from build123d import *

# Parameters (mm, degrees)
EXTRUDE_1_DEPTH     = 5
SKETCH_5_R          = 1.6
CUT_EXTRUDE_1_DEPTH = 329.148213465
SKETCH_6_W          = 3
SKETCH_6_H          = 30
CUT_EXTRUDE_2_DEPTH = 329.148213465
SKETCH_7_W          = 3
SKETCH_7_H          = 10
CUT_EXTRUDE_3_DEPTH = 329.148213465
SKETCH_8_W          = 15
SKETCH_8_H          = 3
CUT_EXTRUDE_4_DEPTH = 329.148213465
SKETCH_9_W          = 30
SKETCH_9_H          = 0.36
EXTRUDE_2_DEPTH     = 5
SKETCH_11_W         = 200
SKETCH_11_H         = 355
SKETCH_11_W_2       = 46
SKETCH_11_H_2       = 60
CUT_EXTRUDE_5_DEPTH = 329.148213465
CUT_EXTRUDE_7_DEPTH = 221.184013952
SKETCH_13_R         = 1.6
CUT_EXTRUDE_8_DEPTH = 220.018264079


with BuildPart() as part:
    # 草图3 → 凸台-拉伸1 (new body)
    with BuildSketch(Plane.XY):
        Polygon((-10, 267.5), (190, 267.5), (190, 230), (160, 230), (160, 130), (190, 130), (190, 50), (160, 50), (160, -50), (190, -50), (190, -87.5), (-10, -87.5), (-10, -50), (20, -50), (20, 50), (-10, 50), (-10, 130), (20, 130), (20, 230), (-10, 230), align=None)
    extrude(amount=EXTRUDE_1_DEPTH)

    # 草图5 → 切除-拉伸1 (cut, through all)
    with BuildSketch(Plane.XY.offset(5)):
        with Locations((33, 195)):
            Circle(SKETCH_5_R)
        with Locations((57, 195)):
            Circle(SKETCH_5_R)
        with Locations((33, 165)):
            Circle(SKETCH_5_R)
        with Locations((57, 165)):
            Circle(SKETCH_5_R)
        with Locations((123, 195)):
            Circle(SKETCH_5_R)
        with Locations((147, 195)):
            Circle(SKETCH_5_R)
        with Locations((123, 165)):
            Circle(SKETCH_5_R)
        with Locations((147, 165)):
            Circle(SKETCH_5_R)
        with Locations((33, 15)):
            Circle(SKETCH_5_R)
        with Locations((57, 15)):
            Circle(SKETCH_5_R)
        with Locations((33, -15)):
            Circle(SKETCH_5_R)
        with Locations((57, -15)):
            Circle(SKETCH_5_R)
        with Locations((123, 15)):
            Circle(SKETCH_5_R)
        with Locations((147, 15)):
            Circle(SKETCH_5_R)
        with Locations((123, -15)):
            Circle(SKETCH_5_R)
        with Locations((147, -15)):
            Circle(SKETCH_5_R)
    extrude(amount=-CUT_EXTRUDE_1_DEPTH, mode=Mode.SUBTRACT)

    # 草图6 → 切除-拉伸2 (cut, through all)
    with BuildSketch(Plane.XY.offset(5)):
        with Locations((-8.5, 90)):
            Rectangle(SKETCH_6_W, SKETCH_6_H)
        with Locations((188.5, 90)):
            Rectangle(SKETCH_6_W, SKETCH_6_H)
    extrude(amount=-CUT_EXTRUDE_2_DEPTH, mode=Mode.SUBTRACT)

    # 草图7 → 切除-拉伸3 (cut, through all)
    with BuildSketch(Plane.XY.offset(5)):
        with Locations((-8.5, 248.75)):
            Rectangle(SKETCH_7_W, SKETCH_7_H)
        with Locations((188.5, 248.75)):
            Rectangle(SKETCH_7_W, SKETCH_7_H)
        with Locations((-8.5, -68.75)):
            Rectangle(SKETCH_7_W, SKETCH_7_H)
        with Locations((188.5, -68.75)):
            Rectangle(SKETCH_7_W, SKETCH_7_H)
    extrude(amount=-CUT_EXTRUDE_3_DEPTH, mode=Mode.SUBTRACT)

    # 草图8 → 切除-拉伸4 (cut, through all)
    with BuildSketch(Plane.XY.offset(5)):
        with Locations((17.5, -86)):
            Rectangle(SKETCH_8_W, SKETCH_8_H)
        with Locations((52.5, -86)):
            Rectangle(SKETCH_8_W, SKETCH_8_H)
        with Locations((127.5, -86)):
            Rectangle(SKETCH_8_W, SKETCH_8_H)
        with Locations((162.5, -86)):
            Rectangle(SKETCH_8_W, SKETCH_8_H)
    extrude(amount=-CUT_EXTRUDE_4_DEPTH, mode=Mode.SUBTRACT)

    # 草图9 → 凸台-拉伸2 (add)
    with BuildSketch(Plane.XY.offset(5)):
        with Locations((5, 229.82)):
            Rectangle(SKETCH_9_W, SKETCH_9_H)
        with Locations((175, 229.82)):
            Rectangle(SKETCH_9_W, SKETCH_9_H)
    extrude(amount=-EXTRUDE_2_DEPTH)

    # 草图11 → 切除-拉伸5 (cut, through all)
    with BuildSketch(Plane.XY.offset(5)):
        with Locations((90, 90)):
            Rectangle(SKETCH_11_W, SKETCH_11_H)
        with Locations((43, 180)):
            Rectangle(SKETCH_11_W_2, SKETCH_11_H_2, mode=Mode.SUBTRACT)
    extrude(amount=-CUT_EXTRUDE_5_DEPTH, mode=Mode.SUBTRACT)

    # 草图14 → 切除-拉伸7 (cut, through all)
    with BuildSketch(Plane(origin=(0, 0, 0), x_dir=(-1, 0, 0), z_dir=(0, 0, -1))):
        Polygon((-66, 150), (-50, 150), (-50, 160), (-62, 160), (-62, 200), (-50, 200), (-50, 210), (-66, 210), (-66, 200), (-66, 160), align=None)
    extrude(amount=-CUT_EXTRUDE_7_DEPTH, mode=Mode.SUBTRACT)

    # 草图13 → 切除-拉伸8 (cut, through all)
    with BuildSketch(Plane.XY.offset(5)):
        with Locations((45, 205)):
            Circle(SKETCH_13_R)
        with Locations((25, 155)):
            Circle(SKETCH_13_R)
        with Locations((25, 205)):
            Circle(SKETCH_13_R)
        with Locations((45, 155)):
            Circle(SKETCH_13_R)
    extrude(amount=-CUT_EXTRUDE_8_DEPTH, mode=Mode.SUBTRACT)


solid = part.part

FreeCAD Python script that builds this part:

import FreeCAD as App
import Part
import Sketcher

V = App.Vector
Q = App.Units.Quantity

doc = App.newDocument("Part")
body = doc.addObject("PartDesign::Body", "Body")

# Sketch on XY plane
sketch1 = body.newObject("Sketcher::SketchObject", "Sketch")
sketch1.AttachmentSupport = (doc.getObject("XY_Plane"), [""])
sketch1.MapMode = "FlatFace"
sketch1.addGeometry([
    Part.LineSegment(V(190, 267.5, 0), V(-10, 267.5, 0)),  # 0
    Part.LineSegment(V(-10, 267.5, 0), V(-10, 230, 0)),  # 1
    Part.LineSegment(V(-10, 230, 0), V(20, 230, 0)),  # 2
    Part.LineSegment(V(20, 230, 0), V(20, 130, 0)),  # 3
    Part.LineSegment(V(20, 130, 0), V(-10, 130, 0)),  # 4
    Part.LineSegment(V(-10, 130, 0), V(-10, 50, 0)),  # 5
    Part.LineSegment(V(-10, 50, 0), V(20, 50, 0)),  # 6
    Part.LineSegment(V(20, 50, 0), V(20, -50, 0)),  # 7
    Part.LineSegment(V(20, -50, 0), V(-10, -50, 0)),  # 8
    Part.LineSegment(V(-10, -50, 0), V(-10, -87.5, 0)),  # 9
    Part.LineSegment(V(-10, -87.5, 0), V(190, -87.5, 0)),  # 10
    Part.LineSegment(V(190, -87.5, 0), V(190, -50, 0)),  # 11
    Part.LineSegment(V(190, -50, 0), V(160, -50, 0)),  # 12
    Part.LineSegment(V(160, -50, 0), V(160, 50, 0)),  # 13
    Part.LineSegment(V(160, 50, 0), V(190, 50, 0)),  # 14
    Part.LineSegment(V(190, 50, 0), V(190, 130, 0)),  # 15
    Part.LineSegment(V(190, 130, 0), V(160, 130, 0)),  # 16
    Part.LineSegment(V(160, 130, 0), V(160, 230, 0)),  # 17
    Part.LineSegment(V(160, 230, 0), V(190, 230, 0)),  # 18
    Part.LineSegment(V(190, 230, 0), V(190, 267.5, 0)),  # 19
], False)
sketch1.addConstraint([
    Sketcher.Constraint("Coincident", 0, 2, 1, 1),
    Sketcher.Constraint("Coincident", 1, 2, 2, 1),
    Sketcher.Constraint("Coincident", 2, 2, 3, 1),
    Sketcher.Constraint("Coincident", 3, 2, 4, 1),
    Sketcher.Constraint("Coincident", 4, 2, 5, 1),
    Sketcher.Constraint("Coincident", 5, 2, 6, 1),
    Sketcher.Constraint("Coincident", 6, 2, 7, 1),
    Sketcher.Constraint("Coincident", 7, 2, 8, 1),
    Sketcher.Constraint("Coincident", 8, 2, 9, 1),
    Sketcher.Constraint("Coincident", 9, 2, 10, 1),
    Sketcher.Constraint("Coincident", 10, 2, 11, 1),
    Sketcher.Constraint("Coincident", 11, 2, 12, 1),
    Sketcher.Constraint("Coincident", 12, 2, 13, 1),
    Sketcher.Constraint("Coincident", 13, 2, 14, 1),
    Sketcher.Constraint("Coincident", 14, 2, 15, 1),
    Sketcher.Constraint("Coincident", 15, 2, 16, 1),
    Sketcher.Constraint("Coincident", 16, 2, 17, 1),
    Sketcher.Constraint("Coincident", 17, 2, 18, 1),
    Sketcher.Constraint("Coincident", 18, 2, 19, 1),
    Sketcher.Constraint("Coincident", 19, 2, 0, 1),
    Sketcher.Constraint("Horizontal", 0),
    Sketcher.Constraint("Vertical", 1),
    Sketcher.Constraint("Horizontal", 2),
    Sketcher.Constraint("Vertical", 3),
    Sketcher.Constraint("Horizontal", 4),
    Sketcher.Constraint("Vertical", 5),
    Sketcher.Constraint("Horizontal", 6),
    Sketcher.Constraint("Vertical", 7),
    Sketcher.Constraint("Horizontal", 8),
    Sketcher.Constraint("Vertical", 9),
    Sketcher.Constraint("Horizontal", 10),
    Sketcher.Constraint("Vertical", 11),
    Sketcher.Constraint("Horizontal", 12),
    Sketcher.Constraint("Vertical", 13),
    Sketcher.Constraint("Horizontal", 14),
    Sketcher.Constraint("Vertical", 15),
    Sketcher.Constraint("Horizontal", 16),
    Sketcher.Constraint("Vertical", 17),
    Sketcher.Constraint("Horizontal", 18),
    Sketcher.Constraint("Vertical", 19),
    Sketcher.Constraint("Symmetric", 5, 2, 8, 2, -1),
    Sketcher.Constraint("Symmetric", 11, 2, 14, 2, -1),
    Sketcher.Constraint("Horizontal", 8, 2, 11, 2),
    Sketcher.Constraint("Horizontal", 4, 2, 15, 2),
    Sketcher.Constraint("Horizontal", 2, 2, 17, 2),
    Sketcher.Constraint("Vertical", 1, 2, 4, 2),
    Sketcher.Constraint("Vertical", 3, 2, 6, 2),
    Sketcher.Constraint("Vertical", 13, 2, 16, 2),
    Sketcher.Constraint("Vertical", 15, 2, 18, 2),
    Sketcher.Constraint("Equal", 8, 12),
    Sketcher.Constraint("Equal", 3, 7),
    Sketcher.Constraint("Equal", 1, 9),
    Sketcher.Constraint("DistanceX", 0, 2, 0, 1, Q("200 mm")),
    Sketcher.Constraint("DistanceX", 2, 1, 2, 2, Q("30 mm")),
    Sketcher.Constraint("DistanceY", 3, 2, 3, 1, Q("100 mm")),
    Sketcher.Constraint("DistanceY", 5, 2, 5, 1, Q("80 mm")),
    Sketcher.Constraint("DistanceY", 1, 2, 1, 1, Q("37.5 mm")),
    Sketcher.Constraint("DistanceX", 0, 2, -1, 1, Q("10 mm")),
])
pad1 = body.newObject("PartDesign::Pad", "Pad")
pad1.Profile = sketch1
pad1.Length = 5

# Sketch on XY plane
sketch2 = body.newObject("Sketcher::SketchObject", "Sketch001")
sketch2.AttachmentSupport = (doc.getObject("XY_Plane"), [""])
sketch2.MapMode = "FlatFace"
sketch2.AttachmentOffset = App.Placement(V(0, 0, 5), App.Rotation())
sketch2.addGeometry([
    Part.Circle(V(33, 195, 0), V(0, 0, 1), 1.6),  # 0
    Part.Circle(V(57, 195, 0), V(0, 0, 1), 1.6),  # 1
    Part.Circle(V(33, 165, 0), V(0, 0, 1), 1.6),  # 2
    Part.Circle(V(57, 165, 0), V(0, 0, 1), 1.6),  # 3
    Part.Circle(V(123, 195, 0), V(0, 0, 1), 1.6),  # 4
    Part.Circle(V(147, 195, 0), V(0, 0, 1), 1.6),  # 5
    Part.Circle(V(123, 165, 0), V(0, 0, 1), 1.6),  # 6
    Part.Circle(V(147, 165, 0), V(0, 0, 1), 1.6),  # 7
    Part.Circle(V(33, 15, 0), V(0, 0, 1), 1.6),  # 8
    Part.Circle(V(57, 15, 0), V(0, 0, 1), 1.6),  # 9
    Part.Circle(V(33, -15, 0), V(0, 0, 1), 1.6),  # 10
    Part.Circle(V(57, -15, 0), V(0, 0, 1), 1.6),  # 11
    Part.Circle(V(123, 15, 0), V(0, 0, 1), 1.6),  # 12
    Part.Circle(V(147, 15, 0), V(0, 0, 1), 1.6),  # 13
    Part.Circle(V(123, -15, 0), V(0, 0, 1), 1.6),  # 14
    Part.Circle(V(147, -15, 0), V(0, 0, 1), 1.6),  # 15
], False)
sketch2.addConstraint([
    Sketcher.Constraint("Equal", 0, 1),
    Sketcher.Constraint("Equal", 1, 2),
    Sketcher.Constraint("Equal", 2, 3),
    Sketcher.Constraint("Equal", 3, 4),
    Sketcher.Constraint("Equal", 4, 5),
    Sketcher.Constraint("Equal", 5, 6),
    Sketcher.Constraint("Equal", 6, 7),
    Sketcher.Constraint("Equal", 7, 8),
    Sketcher.Constraint("Equal", 8, 9),
    Sketcher.Constraint("Equal", 9, 10),
    Sketcher.Constraint("Equal", 10, 11),
    Sketcher.Constraint("Equal", 11, 12),
    Sketcher.Constraint("Equal", 12, 13),
    Sketcher.Constraint("Equal", 13, 14),
    Sketcher.Constraint("Equal", 14, 15),
    Sketcher.Constraint("Symmetric", 8, 3, 10, 3, -1),
    Sketcher.Constraint("Symmetric", 9, 3, 11, 3, -1),
    Sketcher.Constraint("Symmetric", 12, 3, 14, 3, -1),
    Sketcher.Constraint("Symmetric", 13, 3, 15, 3, -1),
    Sketcher.Constraint("Horizontal", 0, 3, 1, 3),
    Sketcher.Constraint("Horizontal", 2, 3, 3, 3),
    Sketcher.Constraint("Horizontal", 1, 3, 4, 3),
    Sketcher.Constraint("Horizontal", 4, 3, 5, 3),
    Sketcher.Constraint("Horizontal", 3, 3, 6, 3),
    Sketcher.Constraint("Horizontal", 6, 3, 7, 3),
    Sketcher.Constraint("Horizontal", 8, 3, 9, 3),
    Sketcher.Constraint("Horizontal", 9, 3, 12, 3),
    Sketcher.Constraint("Horizontal", 12, 3, 13, 3),
    Sketcher.Constraint("Vertical", 0, 3, 2, 3),
    Sketcher.Constraint("Vertical", 1, 3, 3, 3),
    Sketcher.Constraint("Vertical", 4, 3, 6, 3),
    Sketcher.Constraint("Vertical", 5, 3, 7, 3),
    Sketcher.Constraint("Vertical", 2, 3, 8, 3),
    Sketcher.Constraint("Vertical", 3, 3, 9, 3),
    Sketcher.Constraint("Vertical", 6, 3, 12, 3),
    Sketcher.Constraint("Vertical", 7, 3, 13, 3),
    Sketcher.Constraint("Diameter", 0, Q("3.2 mm")),
    Sketcher.Constraint("DistanceX", -1, 1, 0, 3, Q("33 mm")),
    Sketcher.Constraint("DistanceY", -1, 1, 0, 3, Q("195 mm")),
    Sketcher.Constraint("DistanceX", -1, 1, 1, 3, Q("57 mm")),
    Sketcher.Constraint("DistanceY", -1, 1, 2, 3, Q("165 mm")),
    Sketcher.Constraint("DistanceX", -1, 1, 4, 3, Q("123 mm")),
    Sketcher.Constraint("DistanceX", -1, 1, 5, 3, Q("147 mm")),
    Sketcher.Constraint("DistanceY", -1, 1, 8, 3, Q("15 mm")),
])
pocket1 = body.newObject("PartDesign::Pocket", "Pocket")
pocket1.Profile = sketch2
pocket1.Type = "ThroughAll"

# Sketch on XY plane
sketch3 = body.newObject("Sketcher::SketchObject", "Sketch002")
sketch3.AttachmentSupport = (doc.getObject("XY_Plane"), [""])
sketch3.MapMode = "FlatFace"
sketch3.AttachmentOffset = App.Placement(V(0, 0, 5), App.Rotation())
sketch3.addGeometry([
    Part.LineSegment(V(-10, 105, 0), V(-10, 75, 0)),  # 0
    Part.LineSegment(V(-10, 75, 0), V(-7, 75, 0)),  # 1
    Part.LineSegment(V(-7, 75, 0), V(-7, 105, 0)),  # 2
    Part.LineSegment(V(-7, 105, 0), V(-10, 105, 0)),  # 3
    Part.LineSegment(V(187, 105, 0), V(187, 75, 0)),  # 4
    Part.LineSegment(V(187, 75, 0), V(190, 75, 0)),  # 5
    Part.LineSegment(V(190, 75, 0), V(190, 105, 0)),  # 6
    Part.LineSegment(V(190, 105, 0), V(187, 105, 0)),  # 7
], False)
sketch3.addConstraint([
    Sketcher.Constraint("Coincident", 0, 2, 1, 1),
    Sketcher.Constraint("Coincident", 1, 2, 2, 1),
    Sketcher.Constraint("Coincident", 2, 2, 3, 1),
    Sketcher.Constraint("Coincident", 3, 2, 0, 1),
    Sketcher.Constraint("Coincident", 4, 2, 5, 1),
    Sketcher.Constraint("Coincident", 5, 2, 6, 1),
    Sketcher.Constraint("Coincident", 6, 2, 7, 1),
    Sketcher.Constraint("Coincident", 7, 2, 4, 1),
    Sketcher.Constraint("Vertical", 0),
    Sketcher.Constraint("Horizontal", 1),
    Sketcher.Constraint("Vertical", 2),
    Sketcher.Constraint("Horizontal", 3),
    Sketcher.Constraint("Vertical", 4),
    Sketcher.Constraint("Horizontal", 5),
    Sketcher.Constraint("Vertical", 6),
    Sketcher.Constraint("Horizontal", 7),
    Sketcher.Constraint("Horizontal", 1, 2, 4, 2),
    Sketcher.Constraint("Horizontal", 3, 2, 6, 2),
    Sketcher.Constraint("Equal", 3, 5),
    Sketcher.Constraint("DistanceX", 1, 1, 1, 2, Q("3 mm")),
    Sketcher.Constraint("DistanceY", 0, 2, 0, 1, Q("30 mm")),
    Sketcher.Constraint("DistanceX", 0, 2, -1, 1, Q("10 mm")),
    Sketcher.Constraint("DistanceY", -1, 1, 0, 2, Q("75 mm")),
    Sketcher.Constraint("DistanceX", -1, 1, 4, 2, Q("187 mm")),
])
pocket2 = body.newObject("PartDesign::Pocket", "Pocket001")
pocket2.Profile = sketch3
pocket2.Type = "ThroughAll"

# Sketch on XY plane
sketch4 = body.newObject("Sketcher::SketchObject", "Sketch003")
sketch4.AttachmentSupport = (doc.getObject("XY_Plane"), [""])
sketch4.MapMode = "FlatFace"
sketch4.AttachmentOffset = App.Placement(V(0, 0, 5), App.Rotation())
sketch4.addGeometry([
    Part.LineSegment(V(-10, 253.75, 0), V(-10, 243.75, 0)),  # 0
    Part.LineSegment(V(-10, 243.75, 0), V(-7, 243.75, 0)),  # 1
    Part.LineSegment(V(-7, 243.75, 0), V(-7, 253.75, 0)),  # 2
    Part.LineSegment(V(-7, 253.75, 0), V(-10, 253.75, 0)),  # 3
    Part.LineSegment(V(187, 253.75, 0), V(187, 243.75, 0)),  # 4
    Part.LineSegment(V(187, 243.75, 0), V(190, 243.75, 0)),  # 5
    Part.LineSegment(V(190, 243.75, 0), V(190, 253.75, 0)),  # 6
    Part.LineSegment(V(190, 253.75, 0), V(187, 253.75, 0)),  # 7
    Part.LineSegment(V(-10, -63.75, 0), V(-10, -73.75, 0)),  # 8
    Part.LineSegment(V(-10, -73.75, 0), V(-7, -73.75, 0)),  # 9
    Part.LineSegment(V(-7, -73.75, 0), V(-7, -63.75, 0)),  # 10
    Part.LineSegment(V(-7, -63.75, 0), V(-10, -63.75, 0)),  # 11
    Part.LineSegment(V(187, -63.75, 0), V(187, -73.75, 0)),  # 12
    Part.LineSegment(V(187, -73.75, 0), V(190, -73.75, 0)),  # 13
    Part.LineSegment(V(190, -73.75, 0), V(190, -63.75, 0)),  # 14
    Part.LineSegment(V(190, -63.75, 0), V(187, -63.75, 0)),  # 15
], False)
sketch4.addConstraint([
    Sketcher.Constraint("Coincident", 0, 2, 1, 1),
    Sketcher.Constraint("Coincident", 1, 2, 2, 1),
    Sketcher.Constraint("Coincident", 2, 2, 3, 1),
    Sketcher.Constraint("Coincident", 3, 2, 0, 1),
    Sketcher.Constraint("Coincident", 4, 2, 5, 1),
    Sketcher.Constraint("Coincident", 5, 2, 6, 1),
    Sketcher.Constraint("Coincident", 6, 2, 7, 1),
    Sketcher.Constraint("Coincident", 7, 2, 4, 1),
    Sketcher.Constraint("Coincident", 8, 2, 9, 1),
    Sketcher.Constraint("Coincident", 9, 2, 10, 1),
    Sketcher.Constraint("Coincident", 10, 2, 11, 1),
    Sketcher.Constraint("Coincident", 11, 2, 8, 1),
    Sketcher.Constraint("Coincident", 12, 2, 13, 1),
    Sketcher.Constraint("Coincident", 13, 2, 14, 1),
    Sketcher.Constraint("Coincident", 14, 2, 15, 1),
    Sketcher.Constraint("Coincident", 15, 2, 12, 1),
    Sketcher.Constraint("Vertical", 0),
    Sketcher.Constraint("Horizontal", 1),
    Sketcher.Constraint("Vertical", 2),
    Sketcher.Constraint("Horizontal", 3),
    Sketcher.Constraint("Vertical", 4),
    Sketcher.Constraint("Horizontal", 5),
    Sketcher.Constraint("Vertical", 6),
    Sketcher.Constraint("Horizontal", 7),
    Sketcher.Constraint("Vertical", 8),
    Sketcher.Constraint("Horizontal", 9),
    Sketcher.Constraint("Vertical", 10),
    Sketcher.Constraint("Horizontal", 11),
    Sketcher.Constraint("Vertical", 12),
    Sketcher.Constraint("Horizontal", 13),
    Sketcher.Constraint("Vertical", 14),
    Sketcher.Constraint("Horizontal", 15),
    Sketcher.Constraint("Horizontal", 1, 2, 4, 2),
    Sketcher.Constraint("Horizontal", 3, 2, 6, 2),
    Sketcher.Constraint("Horizontal", 9, 2, 12, 2),
    Sketcher.Constraint("Horizontal", 11, 2, 14, 2),
    Sketcher.Constraint("Vertical", 3, 2, 8, 2),
    Sketcher.Constraint("Vertical", 2, 2, 9, 2),
    Sketcher.Constraint("Vertical", 7, 2, 12, 2),
    Sketcher.Constraint("Vertical", 6, 2, 13, 2),
    Sketcher.Constraint("Equal", 3, 5),
    Sketcher.Constraint("Equal", 6, 8),
    Sketcher.Constraint("DistanceX", 1, 1, 1, 2, Q("3 mm")),
    Sketcher.Constraint("DistanceY", 0, 2, 0, 1, Q("10 mm")),
    Sketcher.Constraint("DistanceX", 0, 2, -1, 1, Q("10 mm")),
    Sketcher.Constraint("DistanceX", -1, 1, 4, 2, Q("187 mm")),
    Sketcher.Constraint("DistanceY", 8, 2, 0, 2, Q("317.5 mm")),
    Sketcher.Constraint("DistanceY", -1, 1, 0, 2, Q("243.75 mm")),
])
pocket3 = body.newObject("PartDesign::Pocket", "Pocket002")
pocket3.Profile = sketch4
pocket3.Type = "ThroughAll"

# Sketch on XY plane
sketch5 = body.newObject("Sketcher::SketchObject", "Sketch004")
sketch5.AttachmentSupport = (doc.getObject("XY_Plane"), [""])
sketch5.MapMode = "FlatFace"
sketch5.AttachmentOffset = App.Placement(V(0, 0, 5), App.Rotation())
sketch5.addGeometry([
    Part.LineSegment(V(10, -84.5, 0), V(10, -87.5, 0)),  # 0
    Part.LineSegment(V(10, -87.5, 0), V(25, -87.5, 0)),  # 1
    Part.LineSegment(V(25, -87.5, 0), V(25, -84.5, 0)),  # 2
    Part.LineSegment(V(25, -84.5, 0), V(10, -84.5, 0)),  # 3
    Part.LineSegment(V(45, -84.5, 0), V(45, -87.5, 0)),  # 4
    Part.LineSegment(V(45, -87.5, 0), V(60, -87.5, 0)),  # 5
    Part.LineSegment(V(60, -87.5, 0), V(60, -84.5, 0)),  # 6
    Part.LineSegment(V(60, -84.5, 0), V(45, -84.5, 0)),  # 7
    Part.LineSegment(V(120, -84.5, 0), V(120, -87.5, 0)),  # 8
    Part.LineSegment(V(120, -87.5, 0), V(135, -87.5, 0)),  # 9
    Part.LineSegment(V(135, -87.5, 0), V(135, -84.5, 0)),  # 10
    Part.LineSegment(V(135, -84.5, 0), V(120, -84.5, 0)),  # 11
    Part.LineSegment(V(155, -84.5, 0), V(155, -87.5, 0)),  # 12
    Part.LineSegment(V(155, -87.5, 0), V(170, -87.5, 0)),  # 13
    Part.LineSegment(V(170, -87.5, 0), V(170, -84.5, 0)),  # 14
    Part.LineSegment(V(170, -84.5, 0), V(155, -84.5, 0)),  # 15
], False)
sketch5.addConstraint([
    Sketcher.Constraint("Coincident", 0, 2, 1, 1),
    Sketcher.Constraint("Coincident", 1, 2, 2, 1),
    Sketcher.Constraint("Coincident", 2, 2, 3, 1),
    Sketcher.Constraint("Coincident", 3, 2, 0, 1),
    Sketcher.Constraint("Coincident", 4, 2, 5, 1),
    Sketcher.Constraint("Coincident", 5, 2, 6, 1),
    Sketcher.Constraint("Coincident", 6, 2, 7, 1),
    Sketcher.Constraint("Coincident", 7, 2, 4, 1),
    Sketcher.Constraint("Coincident", 8, 2, 9, 1),
    Sketcher.Constraint("Coincident", 9, 2, 10, 1),
    Sketcher.Constraint("Coincident", 10, 2, 11, 1),
    Sketcher.Constraint("Coincident", 11, 2, 8, 1),
    Sketcher.Constraint("Coincident", 12, 2, 13, 1),
    Sketcher.Constraint("Coincident", 13, 2, 14, 1),
    Sketcher.Constraint("Coincident", 14, 2, 15, 1),
    Sketcher.Constraint("Coincident", 15, 2, 12, 1),
    Sketcher.Constraint("Vertical", 0),
    Sketcher.Constraint("Horizontal", 1),
    Sketcher.Constraint("Vertical", 2),
    Sketcher.Constraint("Horizontal", 3),
    Sketcher.Constraint("Vertical", 4),
    Sketcher.Constraint("Horizontal", 5),
    Sketcher.Constraint("Vertical", 6),
    Sketcher.Constraint("Horizontal", 7),
    Sketcher.Constraint("Vertical", 8),
    Sketcher.Constraint("Horizontal", 9),
    Sketcher.Constraint("Vertical", 10),
    Sketcher.Constraint("Horizontal", 11),
    Sketcher.Constraint("Vertical", 12),
    Sketcher.Constraint("Horizontal", 13),
    Sketcher.Constraint("Vertical", 14),
    Sketcher.Constraint("Horizontal", 15),
    Sketcher.Constraint("Horizontal", 1, 2, 4, 2),
    Sketcher.Constraint("Horizontal", 3, 2, 6, 2),
    Sketcher.Constraint("Horizontal", 5, 2, 8, 2),
    Sketcher.Constraint("Horizontal", 7, 2, 10, 2),
    Sketcher.Constraint("Horizontal", 9, 2, 12, 2),
    Sketcher.Constraint("Horizontal", 11, 2, 14, 2),
    Sketcher.Constraint("Equal", 3, 5),
    Sketcher.Constraint("Equal", 7, 9),
    Sketcher.Constraint("Equal", 11, 13),
    Sketcher.Constraint("DistanceX", 1, 1, 1, 2, Q("15 mm")),
    Sketcher.Constraint("DistanceY", 0, 2, 0, 1, Q("3 mm")),
    Sketcher.Constraint("DistanceX", -1, 1, 0, 2, Q("10 mm")),
    Sketcher.Constraint("DistanceX", -1, 1, 4, 2, Q("45 mm")),
    Sketcher.Constraint("DistanceX", -1, 1, 8, 2, Q("120 mm")),
    Sketcher.Constraint("DistanceX", -1, 1, 12, 2, Q("155 mm")),
    Sketcher.Constraint("DistanceY", 0, 2, -1, 1, Q("87.5 mm")),
])
pocket4 = body.newObject("PartDesign::Pocket", "Pocket003")
pocket4.Profile = sketch5
pocket4.Type = "ThroughAll"

# Sketch on XY plane
sketch6 = body.newObject("Sketcher::SketchObject", "Sketch005")
sketch6.AttachmentSupport = (doc.getObject("XY_Plane"), [""])
sketch6.MapMode = "FlatFace"
sketch6.AttachmentOffset = App.Placement(V(0, 0, 5), App.Rotation())
sketch6.addGeometry([
    Part.LineSegment(V(-10, 230, 0), V(-10, 229.64, 0)),  # 0
    Part.LineSegment(V(-10, 229.64, 0), V(20, 229.64, 0)),  # 1
    Part.LineSegment(V(20, 229.64, 0), V(20, 230, 0)),  # 2
    Part.LineSegment(V(20, 230, 0), V(-10, 230, 0)),  # 3
    Part.LineSegment(V(160, 230, 0), V(160, 229.64, 0)),  # 4
    Part.LineSegment(V(160, 229.64, 0), V(190, 229.64, 0)),  # 5
    Part.LineSegment(V(190, 229.64, 0), V(190, 230, 0)),  # 6
    Part.LineSegment(V(190, 230, 0), V(160, 230, 0)),  # 7
], False)
sketch6.addConstraint([
    Sketcher.Constraint("Coincident", 0, 2, 1, 1),
    Sketcher.Constraint("Coincident", 1, 2, 2, 1),
    Sketcher.Constraint("Coincident", 2, 2, 3, 1),
    Sketcher.Constraint("Coincident", 3, 2, 0, 1),
    Sketcher.Constraint("Coincident", 4, 2, 5, 1),
    Sketcher.Constraint("Coincident", 5, 2, 6, 1),
    Sketcher.Constraint("Coincident", 6, 2, 7, 1),
    Sketcher.Constraint("Coincident", 7, 2, 4, 1),
    Sketcher.Constraint("Vertical", 0),
    Sketcher.Constraint("Horizontal", 1),
    Sketcher.Constraint("Vertical", 2),
    Sketcher.Constraint("Horizontal", 3),
    Sketcher.Constraint("Vertical", 4),
    Sketcher.Constraint("Horizontal", 5),
    Sketcher.Constraint("Vertical", 6),
    Sketcher.Constraint("Horizontal", 7),
    Sketcher.Constraint("Horizontal", 1, 2, 4, 2),
    Sketcher.Constraint("Horizontal", 3, 2, 6, 2),
    Sketcher.Constraint("Equal", 3, 5),
    Sketcher.Constraint("DistanceX", 1, 1, 1, 2, Q("30 mm")),
    Sketcher.Constraint("DistanceX", 0, 2, -1, 1, Q("10 mm")),
    Sketcher.Constraint("DistanceY", -1, 1, 2, 2, Q("230 mm")),
    Sketcher.Constraint("DistanceX", -1, 1, 4, 2, Q("160 mm")),
    Sketcher.Constraint("DistanceY", 0, 2, 0, 1, Q("0.36 mm")),
])
pad2 = body.newObject("PartDesign::Pad", "Pad001")
pad2.Profile = sketch6
pad2.Length = 5
pad2.Reversed = True

# Sketch on XY plane
sketch7 = body.newObject("Sketcher::SketchObject", "Sketch006")
sketch7.AttachmentSupport = (doc.getObject("XY_Plane"), [""])
sketch7.MapMode = "FlatFace"
sketch7.AttachmentOffset = App.Placement(V(0, 0, 5), App.Rotation())
sketch7.addGeometry([
    Part.LineSegment(V(-10, 267.5, 0), V(-10, -87.5, 0)),  # 0
    Part.LineSegment(V(-10, -87.5, 0), V(190, -87.5, 0)),  # 1
    Part.LineSegment(V(190, -87.5, 0), V(190, 267.5, 0)),  # 2
    Part.LineSegment(V(190, 267.5, 0), V(-10, 267.5, 0)),  # 3
    Part.LineSegment(V(66, 150, 0), V(20, 150, 0)),  # 4
    Part.LineSegment(V(20, 150, 0), V(20, 210, 0)),  # 5
    Part.LineSegment(V(20, 210, 0), V(66, 210, 0)),  # 6
    Part.LineSegment(V(66, 210, 0), V(66, 150, 0)),  # 7
], False)
sketch7.addConstraint([
    Sketcher.Constraint("Coincident", 0, 2, 1, 1),
    Sketcher.Constraint("Coincident", 1, 2, 2, 1),
    Sketcher.Constraint("Coincident", 2, 2, 3, 1),
    Sketcher.Constraint("Coincident", 3, 2, 0, 1),
    Sketcher.Constraint("Coincident", 4, 2, 5, 1),
    Sketcher.Constraint("Coincident", 5, 2, 6, 1),
    Sketcher.Constraint("Coincident", 6, 2, 7, 1),
    Sketcher.Constraint("Coincident", 7, 2, 4, 1),
    Sketcher.Constraint("Vertical", 0),
    Sketcher.Constraint("Horizontal", 1),
    Sketcher.Constraint("Vertical", 2),
    Sketcher.Constraint("Horizontal", 3),
    Sketcher.Constraint("Horizontal", 4),
    Sketcher.Constraint("Vertical", 5),
    Sketcher.Constraint("Horizontal", 6),
    Sketcher.Constraint("Vertical", 7),
    Sketcher.Constraint("DistanceX", 1, 1, 1, 2, Q("200 mm")),
    Sketcher.Constraint("DistanceX", 4, 2, 4, 1, Q("46 mm")),
    Sketcher.Constraint("DistanceY", 0, 2, 0, 1, Q("355 mm")),
    Sketcher.Constraint("DistanceY", 5, 1, 5, 2, Q("60 mm")),
    Sketcher.Constraint("DistanceX", 0, 2, -1, 1, Q("10 mm")),
    Sketcher.Constraint("DistanceX", -1, 1, 4, 2, Q("20 mm")),
    Sketcher.Constraint("DistanceY", -1, 1, 4, 2, Q("150 mm")),
    Sketcher.Constraint("DistanceY", 0, 2, -1, 1, Q("87.5 mm")),
])
pocket5 = body.newObject("PartDesign::Pocket", "Pocket004")
pocket5.Profile = sketch7
pocket5.Type = "ThroughAll"

# Sketch on XY plane
sketch8 = body.newObject("Sketcher::SketchObject", "Sketch007")
sketch8.AttachmentSupport = (doc.getObject("XY_Plane"), [""])
sketch8.MapMode = "FlatFace"
sketch8.addGeometry([
    Part.LineSegment(V(66, 150, 0), V(50, 150, 0)),  # 0
    Part.LineSegment(V(50, 150, 0), V(50, 160, 0)),  # 1
    Part.LineSegment(V(50, 160, 0), V(62, 160, 0)),  # 2
    Part.LineSegment(V(62, 160, 0), V(62, 200, 0)),  # 3
    Part.LineSegment(V(62, 200, 0), V(50, 200, 0)),  # 4
    Part.LineSegment(V(50, 200, 0), V(50, 210, 0)),  # 5
    Part.LineSegment(V(50, 210, 0), V(66, 210, 0)),  # 6
    Part.LineSegment(V(66, 210, 0), V(66, 150, 0)),  # 7
], False)
sketch8.addConstraint([
    Sketcher.Constraint("Coincident", 0, 2, 1, 1),
    Sketcher.Constraint("Coincident", 1, 2, 2, 1),
    Sketcher.Constraint("Coincident", 2, 2, 3, 1),
    Sketcher.Constraint("Coincident", 3, 2, 4, 1),
    Sketcher.Constraint("Coincident", 4, 2, 5, 1),
    Sketcher.Constraint("Coincident", 5, 2, 6, 1),
    Sketcher.Constraint("Coincident", 6, 2, 7, 1),
    Sketcher.Constraint("Coincident", 7, 2, 0, 1),
    Sketcher.Constraint("Horizontal", 0),
    Sketcher.Constraint("Vertical", 1),
    Sketcher.Constraint("Horizontal", 2),
    Sketcher.Constraint("Vertical", 3),
    Sketcher.Constraint("Horizontal", 4),
    Sketcher.Constraint("Vertical", 5),
    Sketcher.Constraint("Horizontal", 6),
    Sketcher.Constraint("Vertical", 7),
    Sketcher.Constraint("Vertical", 1, 2, 4, 2),
    Sketcher.Constraint("Equal", 1, 5),
    Sketcher.Constraint("DistanceX", 0, 2, 0, 1, Q("16 mm")),
    Sketcher.Constraint("DistanceX", 2, 1, 2, 2, Q("12 mm")),
    Sketcher.Constraint("DistanceY", 1, 1, 1, 2, Q("10 mm")),
    Sketcher.Constraint("DistanceY", 3, 1, 3, 2, Q("40 mm")),
    Sketcher.Constraint("DistanceX", -1, 1, 0, 2, Q("50 mm")),
    Sketcher.Constraint("DistanceY", -1, 1, 0, 2, Q("150 mm")),
])
pocket6 = body.newObject("PartDesign::Pocket", "Pocket005")
pocket6.Profile = sketch8
pocket6.Type = "ThroughAll"
pocket6.Reversed = True

# Sketch on XY plane
sketch9 = body.newObject("Sketcher::SketchObject", "Sketch008")
sketch9.AttachmentSupport = (doc.getObject("XY_Plane"), [""])
sketch9.MapMode = "FlatFace"
sketch9.AttachmentOffset = App.Placement(V(0, 0, 5), App.Rotation())
sketch9.addGeometry([
    Part.Circle(V(45, 205, 0), V(0, 0, 1), 1.6),
    Part.Circle(V(25, 155, 0), V(0, 0, 1), 1.6),
    Part.Circle(V(25, 205, 0), V(0, 0, 1), 1.6),
    Part.Circle(V(45, 155, 0), V(0, 0, 1), 1.6),
], False)
sketch9.addConstraint([
    Sketcher.Constraint("Equal", 0, 1),
    Sketcher.Constraint("Equal", 1, 2),
    Sketcher.Constraint("Equal", 2, 3),
    Sketcher.Constraint("Horizontal", 0, 3, 2, 3),
    Sketcher.Constraint("Horizontal", 1, 3, 3, 3),
    Sketcher.Constraint("Vertical", 1, 3, 2, 3),
    Sketcher.Constraint("Vertical", 0, 3, 3, 3),
    Sketcher.Constraint("Diameter", 0, Q("3.2 mm")),
    Sketcher.Constraint("DistanceX", -1, 1, 0, 3, Q("45 mm")),
    Sketcher.Constraint("DistanceY", -1, 1, 0, 3, Q("205 mm")),
    Sketcher.Constraint("DistanceX", -1, 1, 1, 3, Q("25 mm")),
    Sketcher.Constraint("DistanceY", -1, 1, 1, 3, Q("155 mm")),
])
pocket7 = body.newObject("PartDesign::Pocket", "Pocket006")
pocket7.Profile = sketch9
pocket7.Type = "ThroughAll"

doc.recompute()
